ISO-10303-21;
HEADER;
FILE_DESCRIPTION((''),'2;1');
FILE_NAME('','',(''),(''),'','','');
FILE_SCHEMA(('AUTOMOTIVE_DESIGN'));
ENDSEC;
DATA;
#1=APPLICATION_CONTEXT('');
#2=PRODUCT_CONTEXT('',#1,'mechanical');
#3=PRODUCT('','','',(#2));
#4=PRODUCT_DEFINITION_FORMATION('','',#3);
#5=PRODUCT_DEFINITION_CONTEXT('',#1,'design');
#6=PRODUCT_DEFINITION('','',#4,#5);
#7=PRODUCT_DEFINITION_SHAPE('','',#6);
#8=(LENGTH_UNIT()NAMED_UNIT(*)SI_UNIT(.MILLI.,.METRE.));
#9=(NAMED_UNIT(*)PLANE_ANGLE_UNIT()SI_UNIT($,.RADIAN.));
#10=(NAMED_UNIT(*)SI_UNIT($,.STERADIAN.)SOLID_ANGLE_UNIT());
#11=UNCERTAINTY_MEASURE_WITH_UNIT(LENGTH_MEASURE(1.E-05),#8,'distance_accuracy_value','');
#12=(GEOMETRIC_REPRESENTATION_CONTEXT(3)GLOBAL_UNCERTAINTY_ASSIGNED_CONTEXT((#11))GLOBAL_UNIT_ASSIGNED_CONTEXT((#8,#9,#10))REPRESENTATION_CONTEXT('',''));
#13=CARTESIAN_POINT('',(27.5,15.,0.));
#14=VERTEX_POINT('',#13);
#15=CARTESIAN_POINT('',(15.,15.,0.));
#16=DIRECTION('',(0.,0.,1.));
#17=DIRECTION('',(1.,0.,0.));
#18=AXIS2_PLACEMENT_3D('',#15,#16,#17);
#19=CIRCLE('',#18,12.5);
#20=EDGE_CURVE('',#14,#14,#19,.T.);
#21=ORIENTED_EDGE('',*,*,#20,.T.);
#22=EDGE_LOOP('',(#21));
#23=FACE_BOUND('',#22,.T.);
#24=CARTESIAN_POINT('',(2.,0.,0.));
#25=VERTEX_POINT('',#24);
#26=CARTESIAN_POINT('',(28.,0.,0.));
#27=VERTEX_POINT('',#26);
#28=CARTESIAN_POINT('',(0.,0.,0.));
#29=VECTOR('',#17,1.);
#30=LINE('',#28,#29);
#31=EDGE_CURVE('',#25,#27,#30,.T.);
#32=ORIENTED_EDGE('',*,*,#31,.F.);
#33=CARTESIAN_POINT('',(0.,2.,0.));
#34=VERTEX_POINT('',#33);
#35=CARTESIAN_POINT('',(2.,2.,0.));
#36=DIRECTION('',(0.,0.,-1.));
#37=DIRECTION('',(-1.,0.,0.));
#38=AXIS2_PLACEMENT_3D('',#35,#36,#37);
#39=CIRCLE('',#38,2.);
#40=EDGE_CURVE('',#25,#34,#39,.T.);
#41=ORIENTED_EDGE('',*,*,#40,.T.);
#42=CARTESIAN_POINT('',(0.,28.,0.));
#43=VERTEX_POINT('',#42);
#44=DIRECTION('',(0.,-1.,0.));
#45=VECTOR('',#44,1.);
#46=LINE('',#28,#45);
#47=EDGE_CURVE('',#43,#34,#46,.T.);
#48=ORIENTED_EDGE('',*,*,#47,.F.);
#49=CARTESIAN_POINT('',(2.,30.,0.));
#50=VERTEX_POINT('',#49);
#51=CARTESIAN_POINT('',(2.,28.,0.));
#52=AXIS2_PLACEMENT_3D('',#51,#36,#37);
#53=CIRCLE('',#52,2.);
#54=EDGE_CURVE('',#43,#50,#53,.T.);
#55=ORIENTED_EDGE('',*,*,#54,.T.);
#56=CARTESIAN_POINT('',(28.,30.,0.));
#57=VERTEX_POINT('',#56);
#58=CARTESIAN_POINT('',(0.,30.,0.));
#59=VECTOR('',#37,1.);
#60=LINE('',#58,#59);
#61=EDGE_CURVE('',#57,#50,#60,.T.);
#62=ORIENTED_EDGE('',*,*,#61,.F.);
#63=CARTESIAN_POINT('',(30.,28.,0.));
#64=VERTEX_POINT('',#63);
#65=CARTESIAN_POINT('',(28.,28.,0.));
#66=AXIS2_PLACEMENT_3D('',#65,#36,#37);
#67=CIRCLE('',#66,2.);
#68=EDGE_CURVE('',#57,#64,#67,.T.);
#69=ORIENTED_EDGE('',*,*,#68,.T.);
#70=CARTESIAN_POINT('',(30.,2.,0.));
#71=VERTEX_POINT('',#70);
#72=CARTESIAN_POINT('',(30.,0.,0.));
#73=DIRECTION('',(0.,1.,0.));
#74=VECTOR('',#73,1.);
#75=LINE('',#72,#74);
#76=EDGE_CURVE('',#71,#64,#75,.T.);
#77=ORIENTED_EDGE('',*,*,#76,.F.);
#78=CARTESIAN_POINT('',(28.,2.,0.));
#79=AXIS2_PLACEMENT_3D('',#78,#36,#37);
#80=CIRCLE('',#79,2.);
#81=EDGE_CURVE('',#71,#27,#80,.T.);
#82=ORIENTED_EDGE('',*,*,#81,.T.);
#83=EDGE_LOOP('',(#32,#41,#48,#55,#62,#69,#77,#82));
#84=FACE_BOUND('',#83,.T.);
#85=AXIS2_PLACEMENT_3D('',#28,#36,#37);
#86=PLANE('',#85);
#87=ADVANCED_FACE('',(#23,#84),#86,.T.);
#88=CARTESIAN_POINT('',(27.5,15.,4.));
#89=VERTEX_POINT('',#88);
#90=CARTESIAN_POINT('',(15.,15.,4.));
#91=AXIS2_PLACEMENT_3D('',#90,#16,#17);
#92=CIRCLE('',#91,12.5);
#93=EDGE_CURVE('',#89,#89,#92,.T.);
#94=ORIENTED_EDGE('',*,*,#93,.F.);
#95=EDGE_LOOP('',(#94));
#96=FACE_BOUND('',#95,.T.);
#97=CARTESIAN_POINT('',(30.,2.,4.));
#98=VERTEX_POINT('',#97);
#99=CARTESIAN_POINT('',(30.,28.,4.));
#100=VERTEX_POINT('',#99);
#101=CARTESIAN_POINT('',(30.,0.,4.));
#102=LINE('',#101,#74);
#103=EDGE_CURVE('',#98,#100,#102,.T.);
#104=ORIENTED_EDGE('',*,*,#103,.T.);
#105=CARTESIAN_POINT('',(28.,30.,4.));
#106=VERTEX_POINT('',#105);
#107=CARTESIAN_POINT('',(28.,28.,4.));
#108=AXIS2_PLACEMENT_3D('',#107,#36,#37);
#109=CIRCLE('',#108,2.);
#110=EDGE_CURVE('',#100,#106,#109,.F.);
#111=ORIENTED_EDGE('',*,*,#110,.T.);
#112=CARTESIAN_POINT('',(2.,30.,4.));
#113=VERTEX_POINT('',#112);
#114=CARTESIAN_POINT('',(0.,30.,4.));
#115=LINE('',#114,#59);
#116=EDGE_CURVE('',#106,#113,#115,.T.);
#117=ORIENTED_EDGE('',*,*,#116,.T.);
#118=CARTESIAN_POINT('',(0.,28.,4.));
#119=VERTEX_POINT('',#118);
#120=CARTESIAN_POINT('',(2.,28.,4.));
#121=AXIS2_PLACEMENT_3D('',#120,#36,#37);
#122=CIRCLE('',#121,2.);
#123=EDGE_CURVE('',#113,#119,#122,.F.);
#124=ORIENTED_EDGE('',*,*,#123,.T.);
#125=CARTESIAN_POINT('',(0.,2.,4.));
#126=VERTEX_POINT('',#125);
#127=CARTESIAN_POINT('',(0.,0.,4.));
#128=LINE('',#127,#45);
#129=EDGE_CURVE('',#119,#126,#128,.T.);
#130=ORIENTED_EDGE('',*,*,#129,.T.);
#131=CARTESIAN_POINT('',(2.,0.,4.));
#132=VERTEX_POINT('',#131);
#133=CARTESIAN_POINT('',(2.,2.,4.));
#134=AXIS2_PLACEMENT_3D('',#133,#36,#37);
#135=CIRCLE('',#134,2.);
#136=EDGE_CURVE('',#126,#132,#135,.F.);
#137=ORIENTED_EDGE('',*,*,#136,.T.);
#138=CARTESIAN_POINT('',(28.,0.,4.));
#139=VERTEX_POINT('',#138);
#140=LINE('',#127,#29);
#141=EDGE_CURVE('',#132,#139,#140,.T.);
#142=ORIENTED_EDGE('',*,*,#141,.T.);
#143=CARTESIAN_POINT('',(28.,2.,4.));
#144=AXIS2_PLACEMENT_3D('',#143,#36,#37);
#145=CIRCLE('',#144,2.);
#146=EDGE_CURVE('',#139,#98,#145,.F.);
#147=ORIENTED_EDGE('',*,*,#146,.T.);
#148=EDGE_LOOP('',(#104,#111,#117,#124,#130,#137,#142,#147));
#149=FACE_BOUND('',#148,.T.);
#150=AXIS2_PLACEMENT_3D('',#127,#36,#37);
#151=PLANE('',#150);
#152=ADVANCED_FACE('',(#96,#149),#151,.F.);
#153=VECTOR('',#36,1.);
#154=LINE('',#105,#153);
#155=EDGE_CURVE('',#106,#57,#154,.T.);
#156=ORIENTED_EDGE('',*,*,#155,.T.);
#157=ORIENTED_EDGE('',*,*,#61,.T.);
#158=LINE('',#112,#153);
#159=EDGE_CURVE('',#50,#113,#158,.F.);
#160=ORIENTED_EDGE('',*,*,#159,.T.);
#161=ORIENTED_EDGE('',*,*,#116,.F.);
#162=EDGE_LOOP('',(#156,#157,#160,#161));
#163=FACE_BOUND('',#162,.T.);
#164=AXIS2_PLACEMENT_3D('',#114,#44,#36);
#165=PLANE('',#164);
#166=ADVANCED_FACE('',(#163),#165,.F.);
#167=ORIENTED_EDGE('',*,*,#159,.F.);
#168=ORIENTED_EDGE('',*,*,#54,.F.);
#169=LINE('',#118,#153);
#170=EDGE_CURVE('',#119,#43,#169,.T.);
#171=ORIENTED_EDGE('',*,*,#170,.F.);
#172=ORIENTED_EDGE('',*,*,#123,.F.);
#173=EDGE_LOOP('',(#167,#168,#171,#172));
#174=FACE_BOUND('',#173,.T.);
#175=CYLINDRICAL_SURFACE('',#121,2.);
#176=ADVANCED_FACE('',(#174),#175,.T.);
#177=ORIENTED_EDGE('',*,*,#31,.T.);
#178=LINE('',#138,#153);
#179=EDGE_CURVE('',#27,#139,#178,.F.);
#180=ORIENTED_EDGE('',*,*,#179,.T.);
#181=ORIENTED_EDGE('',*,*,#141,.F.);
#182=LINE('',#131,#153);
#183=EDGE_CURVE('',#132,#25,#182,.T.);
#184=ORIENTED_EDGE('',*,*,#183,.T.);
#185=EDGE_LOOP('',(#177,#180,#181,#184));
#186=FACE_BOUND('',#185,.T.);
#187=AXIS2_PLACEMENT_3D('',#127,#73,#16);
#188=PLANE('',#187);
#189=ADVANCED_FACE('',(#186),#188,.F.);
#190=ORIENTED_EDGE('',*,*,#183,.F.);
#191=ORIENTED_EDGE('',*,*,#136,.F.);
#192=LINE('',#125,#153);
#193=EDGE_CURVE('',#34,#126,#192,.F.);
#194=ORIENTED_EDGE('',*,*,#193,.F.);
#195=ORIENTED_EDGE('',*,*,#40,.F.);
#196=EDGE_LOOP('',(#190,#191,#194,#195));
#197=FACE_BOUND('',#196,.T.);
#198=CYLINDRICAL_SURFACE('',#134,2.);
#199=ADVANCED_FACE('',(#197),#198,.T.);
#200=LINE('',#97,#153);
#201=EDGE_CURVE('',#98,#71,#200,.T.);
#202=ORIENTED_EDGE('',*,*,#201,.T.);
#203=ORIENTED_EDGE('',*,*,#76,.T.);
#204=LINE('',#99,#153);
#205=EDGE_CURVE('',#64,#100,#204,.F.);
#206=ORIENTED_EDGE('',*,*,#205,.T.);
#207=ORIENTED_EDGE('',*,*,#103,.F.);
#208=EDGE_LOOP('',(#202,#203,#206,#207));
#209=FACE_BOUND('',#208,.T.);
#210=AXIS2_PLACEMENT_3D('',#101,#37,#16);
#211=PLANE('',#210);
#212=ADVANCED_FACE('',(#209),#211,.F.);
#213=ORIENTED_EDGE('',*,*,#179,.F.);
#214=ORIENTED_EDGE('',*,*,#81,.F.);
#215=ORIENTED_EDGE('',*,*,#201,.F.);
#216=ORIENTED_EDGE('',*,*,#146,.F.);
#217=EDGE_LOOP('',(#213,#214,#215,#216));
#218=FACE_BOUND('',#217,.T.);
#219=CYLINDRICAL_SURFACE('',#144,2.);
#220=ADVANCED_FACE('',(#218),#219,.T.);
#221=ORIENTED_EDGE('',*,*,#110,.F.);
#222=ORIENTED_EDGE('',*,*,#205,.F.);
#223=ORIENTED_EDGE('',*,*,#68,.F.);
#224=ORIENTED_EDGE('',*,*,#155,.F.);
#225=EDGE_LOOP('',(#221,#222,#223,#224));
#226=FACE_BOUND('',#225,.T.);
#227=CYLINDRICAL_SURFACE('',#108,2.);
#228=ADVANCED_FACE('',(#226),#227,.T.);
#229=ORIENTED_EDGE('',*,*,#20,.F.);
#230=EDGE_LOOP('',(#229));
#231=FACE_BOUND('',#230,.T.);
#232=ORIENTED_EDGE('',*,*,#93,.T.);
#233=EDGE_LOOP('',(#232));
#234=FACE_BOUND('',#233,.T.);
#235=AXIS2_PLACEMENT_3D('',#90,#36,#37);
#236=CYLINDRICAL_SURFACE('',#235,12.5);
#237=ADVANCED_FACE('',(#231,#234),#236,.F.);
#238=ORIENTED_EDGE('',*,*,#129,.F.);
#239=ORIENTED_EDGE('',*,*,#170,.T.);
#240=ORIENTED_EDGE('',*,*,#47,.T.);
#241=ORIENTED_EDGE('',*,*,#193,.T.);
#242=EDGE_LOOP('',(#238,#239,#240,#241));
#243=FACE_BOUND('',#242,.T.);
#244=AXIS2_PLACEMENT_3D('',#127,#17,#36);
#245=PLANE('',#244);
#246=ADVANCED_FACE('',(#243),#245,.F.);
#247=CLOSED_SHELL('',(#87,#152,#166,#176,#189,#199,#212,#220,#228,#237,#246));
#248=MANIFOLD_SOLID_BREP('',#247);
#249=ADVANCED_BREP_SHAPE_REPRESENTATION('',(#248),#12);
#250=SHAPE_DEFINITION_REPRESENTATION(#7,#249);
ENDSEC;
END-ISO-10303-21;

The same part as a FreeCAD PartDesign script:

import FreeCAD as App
import Part
import Sketcher
Q = App.Units.Quantity


def edges_at(feature, points):
    """Names of the edges that pass closest to the given points."""
    edges = feature.Shape.Edges
    near = lambda p: min(range(len(edges)), key=lambda i: edges[i].distToShape(Part.Vertex(*p))[0])
    return sorted({f"Edge{near(p) + 1}" for p in points})

doc = App.newDocument("Part")
body = doc.addObject("PartDesign::Body", "Body")

# Sketch on XY plane
sketch1 = doc.addObject("Sketcher::SketchObject", "Sketch")
body.addObject(sketch1)
sketch1.AttachmentSupport = (doc.XY_Plane, [""])
sketch1.MapMode = "FlatFace"
sketch1.addGeometry(Part.LineSegment(App.Vector(0, 30, 0), App.Vector(0, 0, 0)), False)
sketch1.addGeometry(Part.LineSegment(App.Vector(0, 0, 0), App.Vector(30, 0, 0)), False)
sketch1.addGeometry(Part.LineSegment(App.Vector(30, 0, 0), App.Vector(30, 30, 0)), False)
sketch1.addGeometry(Part.LineSegment(App.Vector(30, 30, 0), App.Vector(0, 30, 0)), False)
sketch1.addGeometry(Part.Circle(App.Vector(15, 15, 0), App.Vector(0, 0, 1), 12), False)
sketch1.addConstraint(Sketcher.Constraint("Coincident", 0, 2, 1, 1))
sketch1.addConstraint(Sketcher.Constraint("Coincident", 1, 2, 2, 1))
sketch1.addConstraint(Sketcher.Constraint("Coincident", 2, 2, 3, 1))
sketch1.addConstraint(Sketcher.Constraint("Coincident", 3, 2, 0, 1))
sketch1.addConstraint(Sketcher.Constraint("Vertical", 0))
sketch1.addConstraint(Sketcher.Constraint("Horizontal", 1))
sketch1.addConstraint(Sketcher.Constraint("Vertical", 2))
sketch1.addConstraint(Sketcher.Constraint("Horizontal", 3))
sketch1.addConstraint(Sketcher.Constraint("Coincident", 0, 2, -1, 1))
sketch1.addConstraint(Sketcher.Constraint("Equal", 3, 0))
sketch1.addConstraint(Sketcher.Constraint("Diameter", 4, Q("25 mm")))
sketch1.addConstraint(Sketcher.Constraint("DistanceX", 1, 1, 1, 2, Q("30 mm")))
sketch1.addConstraint(Sketcher.Constraint("DistanceX", -1, 1, 4, 3, Q("15 mm")))
sketch1.addConstraint(Sketcher.Constraint("DistanceY", -1, 1, 4, 3, Q("15 mm")))
pad1 = doc.addObject("PartDesign::Pad", "Pad")
body.addObject(pad1)
pad1.Profile = sketch1
pad1.Length = 4
doc.recompute()

fillet = doc.addObject("PartDesign::Fillet", "Fillet")
body.addObject(fillet)
fillet.Base = (pad1, edges_at(pad1, [
    (0, 30, 2),
    (30, 30, 2),
    (30, 0, 2),
    (0, 0, 2),
]))
fillet.Radius = 2

doc.recompute()
